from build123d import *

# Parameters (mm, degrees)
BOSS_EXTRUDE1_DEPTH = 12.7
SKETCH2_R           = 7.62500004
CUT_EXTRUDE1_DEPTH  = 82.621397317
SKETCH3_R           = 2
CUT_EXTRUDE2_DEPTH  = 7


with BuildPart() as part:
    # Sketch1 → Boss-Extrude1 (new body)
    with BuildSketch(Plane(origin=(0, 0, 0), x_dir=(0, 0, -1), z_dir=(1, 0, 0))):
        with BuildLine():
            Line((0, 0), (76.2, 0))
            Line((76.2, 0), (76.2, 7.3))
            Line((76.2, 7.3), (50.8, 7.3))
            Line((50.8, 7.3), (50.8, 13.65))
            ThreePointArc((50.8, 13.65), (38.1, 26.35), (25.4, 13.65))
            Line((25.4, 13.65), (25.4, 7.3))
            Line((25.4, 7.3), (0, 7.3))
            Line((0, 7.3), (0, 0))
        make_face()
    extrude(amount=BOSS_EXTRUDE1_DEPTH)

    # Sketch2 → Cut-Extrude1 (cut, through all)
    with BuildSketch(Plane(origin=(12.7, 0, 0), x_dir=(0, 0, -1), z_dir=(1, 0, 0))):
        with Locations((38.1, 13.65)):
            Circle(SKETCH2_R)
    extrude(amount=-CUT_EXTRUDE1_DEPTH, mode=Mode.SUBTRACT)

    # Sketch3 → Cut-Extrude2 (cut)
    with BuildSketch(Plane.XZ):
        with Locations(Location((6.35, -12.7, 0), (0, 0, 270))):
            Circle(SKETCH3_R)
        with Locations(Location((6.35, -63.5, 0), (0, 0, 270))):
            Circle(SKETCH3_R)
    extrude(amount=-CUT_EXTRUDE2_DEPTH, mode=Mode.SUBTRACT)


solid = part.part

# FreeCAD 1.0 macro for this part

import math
import FreeCAD as App
import Part
import Sketcher
from FreeCAD import Vector
Q = App.Units.Quantity

doc = App.newDocument("Part")
body = doc.addObject("PartDesign::Body", "Body")

# Sketch on YZ plane
sketch1 = body.newObject("Sketcher::SketchObject", "Sketch")
sketch1.AttachmentSupport = (doc.getObject("YZ_Plane"), [""])
sketch1.MapMode = "FlatFace"
sketch1.addGeometry(Part.LineSegment(Vector(0, 0, 0), Vector(0, -76.2, 0)), False)
sketch1.addGeometry(Part.LineSegment(Vector(0, -76.2, 0), Vector(7.3, -76.2, 0)), False)
sketch1.addGeometry(Part.LineSegment(Vector(7.3, -76.2, 0), Vector(7.3, -50.8, 0)), False)
sketch1.addGeometry(Part.LineSegment(Vector(7.3, -50.8, 0), Vector(13.65, -50.8, 0)), False)
sketch1.addGeometry(Part.ArcOfCircle(Part.Circle(Vector(13.65, -38.1, 0), Vector(0, 0, 1), 12.7), math.radians(-90), math.radians(90)), False)
sketch1.addGeometry(Part.LineSegment(Vector(13.65, -25.4, 0), Vector(7.3, -25.4, 0)), False)
sketch1.addGeometry(Part.LineSegment(Vector(7.3, -25.4, 0), Vector(7.3, 0, 0)), False)
sketch1.addGeometry(Part.LineSegment(Vector(7.3, 0, 0), Vector(0, 0, 0)), False)
sketch1.addConstraint(Sketcher.Constraint("Coincident", 0, 2, 1, 1))
sketch1.addConstraint(Sketcher.Constraint("Coincident", 1, 2, 2, 1))
sketch1.addConstraint(Sketcher.Constraint("Coincident", 2, 2, 3, 1))
sketch1.addConstraint(Sketcher.Constraint("Tangent", 3, 2, 4, 1))
sketch1.addConstraint(Sketcher.Constraint("Tangent", 4, 2, 5, 1))
sketch1.addConstraint(Sketcher.Constraint("Coincident", 5, 2, 6, 1))
sketch1.addConstraint(Sketcher.Constraint("Coincident", 6, 2, 7, 1))
sketch1.addConstraint(Sketcher.Constraint("Coincident", 7, 2, 0, 1))
sketch1.addConstraint(Sketcher.Constraint("Vertical", 0))
sketch1.addConstraint(Sketcher.Constraint("Horizontal", 1))
sketch1.addConstraint(Sketcher.Constraint("Vertical", 2))
sketch1.addConstraint(Sketcher.Constraint("Horizontal", 3))
sketch1.addConstraint(Sketcher.Constraint("Horizontal", 5))
sketch1.addConstraint(Sketcher.Constraint("Vertical", 6))
sketch1.addConstraint(Sketcher.Constraint("Horizontal", 7))
sketch1.addConstraint(Sketcher.Constraint("Coincident", 7, 2, -1, 1))
sketch1.addConstraint(Sketcher.Constraint("Vertical", 2, 2, 5, 2))
sketch1.addConstraint(Sketcher.Constraint("Equal", 2, 6))
sketch1.addConstraint(Sketcher.Constraint("Radius", 4, Q("0.5 in")))
sketch1.addConstraint(Sketcher.Constraint("DistanceY", 0, 2, 0, 1, Q("3 in")))
sketch1.addConstraint(Sketcher.Constraint("DistanceX", 3, 1, 3, 2, Q("0.25 in")))
sketch1.addConstraint(Sketcher.Constraint("DistanceX", 1, 1, 1, 2, 7.3))
pad1 = body.newObject("PartDesign::Pad", "Pad")
pad1.Profile = sketch1
pad1.Length = Q("0.5 in")

# Sketch on YZ plane
sketch2 = body.newObject("Sketcher::SketchObject", "Sketch001")
sketch2.AttachmentSupport = (doc.getObject("YZ_Plane"), [""])
sketch2.MapMode = "FlatFace"
sketch2.AttachmentOffset = App.Placement(Vector(0, 0, 0.5 * 25.4), App.Rotation())
sketch2.addGeometry(Part.Circle(Vector(13.65, -38.1, 0), Vector(0, 0, 1), 7.625), False)
sketch2.addConstraint(Sketcher.Constraint("DistanceY", 0, 3, -1, 1, Q("1.5 in")))
sketch2.addConstraint(Sketcher.Constraint("Diameter", 0, 15.25))
sketch2.addConstraint(Sketcher.Constraint("DistanceX", -1, 1, 0, 3, 13.65))
pocket1 = body.newObject("PartDesign::Pocket", "Pocket")
pocket1.Profile = sketch2
pocket1.Type = "ThroughAll"

# Sketch on XZ plane
sketch3 = body.newObject("Sketcher::SketchObject", "Sketch002")
sketch3.AttachmentSupport = (doc.getObject("XZ_Plane"), [""])
sketch3.MapMode = "FlatFace"
sketch3.addGeometry(Part.Circle(Vector(6.35, -12.7, 0), Vector(0, 0, 1), 2), False)
sketch3.addGeometry(Part.Circle(Vector(6.35, -63.5, 0), Vector(0, 0, 1), 2), False)
sketch3.addConstraint(Sketcher.Constraint("Equal", 0, 1))
sketch3.addConstraint(Sketcher.Constraint("Vertical", 0, 3, 1, 3))
sketch3.addConstraint(Sketcher.Constraint("DistanceY", 1, 3, 0, 3, Q("2 in")))
sketch3.addConstraint(Sketcher.Constraint("DistanceY", 0, 3, -1, 1, Q("0.5 in")))
sketch3.addConstraint(Sketcher.Constraint("Diameter", 0, 4.0))
sketch3.addConstraint(Sketcher.Constraint("DistanceX", -1, 1, 0, 3, Q("0.25 in")))
pocket2 = body.newObject("PartDesign::Pocket", "Pocket001")
pocket2.Profile = sketch3
pocket2.Length = 7

doc.recompute()
